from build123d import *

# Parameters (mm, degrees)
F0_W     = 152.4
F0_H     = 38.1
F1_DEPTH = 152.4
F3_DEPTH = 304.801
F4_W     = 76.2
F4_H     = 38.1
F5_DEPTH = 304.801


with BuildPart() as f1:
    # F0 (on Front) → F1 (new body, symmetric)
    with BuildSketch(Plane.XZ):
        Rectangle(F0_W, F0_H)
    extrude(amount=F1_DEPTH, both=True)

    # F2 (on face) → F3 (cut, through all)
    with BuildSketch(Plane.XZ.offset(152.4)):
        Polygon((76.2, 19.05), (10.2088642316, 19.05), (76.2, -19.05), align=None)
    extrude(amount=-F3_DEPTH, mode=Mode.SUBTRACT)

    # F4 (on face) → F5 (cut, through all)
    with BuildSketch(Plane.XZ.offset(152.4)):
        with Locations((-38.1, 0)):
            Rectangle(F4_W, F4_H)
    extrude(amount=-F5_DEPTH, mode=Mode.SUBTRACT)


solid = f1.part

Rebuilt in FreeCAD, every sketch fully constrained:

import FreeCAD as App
import Part
import Sketcher

V = App.Vector
Q = App.Units.Quantity


def add_polygon(sketch, points):
    """Adds a closed chain of lines whose ends are joined by coincident constraints."""
    first, n = sketch.GeometryCount, len(points)
    for a, b in zip(points, points[1:] + points[:1]):
        sketch.addGeometry(Part.LineSegment(App.Vector(*a, 0), App.Vector(*b, 0)), False)
    for i in range(n):
        sketch.addConstraint(Sketcher.Constraint("Coincident", first + i, 2, first + (i + 1) % n, 1))

doc = App.newDocument("Part")
body = doc.addObject("PartDesign::Body", "Body")

# Sketch on XZ plane
sketch1 = body.newObject("Sketcher::SketchObject", "Sketch")
sketch1.AttachmentSupport = (doc.getObject("XZ_Plane"), [""])
sketch1.MapMode = "FlatFace"
add_polygon(sketch1, [(-76.2, 19.05), (-76.2, -19.05), (76.2, -19.05), (76.2, 19.05)])  # lines 0-3
sketch1.addConstraint(Sketcher.Constraint("Vertical", 0))
sketch1.addConstraint(Sketcher.Constraint("Horizontal", 1))
sketch1.addConstraint(Sketcher.Constraint("Vertical", 2))
sketch1.addConstraint(Sketcher.Constraint("Horizontal", 3))
sketch1.addConstraint(Sketcher.Constraint("Symmetric", 0, 2, 2, 2, -1, 1))
sketch1.addConstraint(Sketcher.Constraint("DistanceX", 1, 1, 1, 2, Q("6 in")))
sketch1.addConstraint(Sketcher.Constraint("DistanceY", 0, 2, 0, 1, Q("1.5 in")))
pad1 = body.newObject("PartDesign::Pad", "Pad")
pad1.Profile = sketch1
pad1.Length = Q("12 in")
pad1.Midplane = True

# Sketch on XZ plane
sketch2 = body.newObject("Sketcher::SketchObject", "Sketch001")
sketch2.AttachmentSupport = (doc.getObject("XZ_Plane"), [""])
sketch2.MapMode = "FlatFace"
sketch2.AttachmentOffset = App.Placement(V(0, 0, 6 * 25.4), App.Rotation())
add_polygon(sketch2, [(76.2, 19.05), (10.208864, 19.05), (76.2, -19.05)])  # lines 0-2
sketch2.addConstraint(Sketcher.Constraint("Horizontal", 0))
sketch2.addConstraint(Sketcher.Constraint("Vertical", 2))
sketch2.addConstraint(Sketcher.Constraint("Distance", 1, Q("3 in")))
sketch2.addConstraint(Sketcher.Constraint("DistanceY", 2, 1, 2, 2, Q("1.5 in")))
sketch2.addConstraint(Sketcher.Constraint("DistanceX", -1, 1, 1, 2, Q("3 in")))
sketch2.addConstraint(Sketcher.Constraint("DistanceY", -1, 1, 0, 2, Q("0.75 in")))
pocket1 = body.newObject("PartDesign::Pocket", "Pocket")
pocket1.Profile = sketch2
pocket1.Type = "ThroughAll"

# Sketch on XZ plane
sketch3 = body.newObject("Sketcher::SketchObject", "Sketch002")
sketch3.AttachmentSupport = (doc.getObject("XZ_Plane"), [""])
sketch3.MapMode = "FlatFace"
sketch3.AttachmentOffset = App.Placement(V(0, 0, 6 * 25.4), App.Rotation())
add_polygon(sketch3, [(-76.2, 19.05), (-76.2, -19.05), (0, -19.05), (0, 19.05)])  # lines 0-3
sketch3.addConstraint(Sketcher.Constraint("Vertical", 0))
sketch3.addConstraint(Sketcher.Constraint("Horizontal", 1))
sketch3.addConstraint(Sketcher.Constraint("Vertical", 2))
sketch3.addConstraint(Sketcher.Constraint("Horizontal", 3))
sketch3.addConstraint(Sketcher.Constraint("Symmetric", 1, 2, 2, 2, -1, 1))
sketch3.addConstraint(Sketcher.Constraint("DistanceX", 1, 1, 1, 2, Q("3 in")))
sketch3.addConstraint(Sketcher.Constraint("DistanceY", 0, 2, 0, 1, Q("1.5 in")))
pocket2 = body.newObject("PartDesign::Pocket", "Pocket001")
pocket2.Profile = sketch3
pocket2.Type = "ThroughAll"

doc.recompute()
